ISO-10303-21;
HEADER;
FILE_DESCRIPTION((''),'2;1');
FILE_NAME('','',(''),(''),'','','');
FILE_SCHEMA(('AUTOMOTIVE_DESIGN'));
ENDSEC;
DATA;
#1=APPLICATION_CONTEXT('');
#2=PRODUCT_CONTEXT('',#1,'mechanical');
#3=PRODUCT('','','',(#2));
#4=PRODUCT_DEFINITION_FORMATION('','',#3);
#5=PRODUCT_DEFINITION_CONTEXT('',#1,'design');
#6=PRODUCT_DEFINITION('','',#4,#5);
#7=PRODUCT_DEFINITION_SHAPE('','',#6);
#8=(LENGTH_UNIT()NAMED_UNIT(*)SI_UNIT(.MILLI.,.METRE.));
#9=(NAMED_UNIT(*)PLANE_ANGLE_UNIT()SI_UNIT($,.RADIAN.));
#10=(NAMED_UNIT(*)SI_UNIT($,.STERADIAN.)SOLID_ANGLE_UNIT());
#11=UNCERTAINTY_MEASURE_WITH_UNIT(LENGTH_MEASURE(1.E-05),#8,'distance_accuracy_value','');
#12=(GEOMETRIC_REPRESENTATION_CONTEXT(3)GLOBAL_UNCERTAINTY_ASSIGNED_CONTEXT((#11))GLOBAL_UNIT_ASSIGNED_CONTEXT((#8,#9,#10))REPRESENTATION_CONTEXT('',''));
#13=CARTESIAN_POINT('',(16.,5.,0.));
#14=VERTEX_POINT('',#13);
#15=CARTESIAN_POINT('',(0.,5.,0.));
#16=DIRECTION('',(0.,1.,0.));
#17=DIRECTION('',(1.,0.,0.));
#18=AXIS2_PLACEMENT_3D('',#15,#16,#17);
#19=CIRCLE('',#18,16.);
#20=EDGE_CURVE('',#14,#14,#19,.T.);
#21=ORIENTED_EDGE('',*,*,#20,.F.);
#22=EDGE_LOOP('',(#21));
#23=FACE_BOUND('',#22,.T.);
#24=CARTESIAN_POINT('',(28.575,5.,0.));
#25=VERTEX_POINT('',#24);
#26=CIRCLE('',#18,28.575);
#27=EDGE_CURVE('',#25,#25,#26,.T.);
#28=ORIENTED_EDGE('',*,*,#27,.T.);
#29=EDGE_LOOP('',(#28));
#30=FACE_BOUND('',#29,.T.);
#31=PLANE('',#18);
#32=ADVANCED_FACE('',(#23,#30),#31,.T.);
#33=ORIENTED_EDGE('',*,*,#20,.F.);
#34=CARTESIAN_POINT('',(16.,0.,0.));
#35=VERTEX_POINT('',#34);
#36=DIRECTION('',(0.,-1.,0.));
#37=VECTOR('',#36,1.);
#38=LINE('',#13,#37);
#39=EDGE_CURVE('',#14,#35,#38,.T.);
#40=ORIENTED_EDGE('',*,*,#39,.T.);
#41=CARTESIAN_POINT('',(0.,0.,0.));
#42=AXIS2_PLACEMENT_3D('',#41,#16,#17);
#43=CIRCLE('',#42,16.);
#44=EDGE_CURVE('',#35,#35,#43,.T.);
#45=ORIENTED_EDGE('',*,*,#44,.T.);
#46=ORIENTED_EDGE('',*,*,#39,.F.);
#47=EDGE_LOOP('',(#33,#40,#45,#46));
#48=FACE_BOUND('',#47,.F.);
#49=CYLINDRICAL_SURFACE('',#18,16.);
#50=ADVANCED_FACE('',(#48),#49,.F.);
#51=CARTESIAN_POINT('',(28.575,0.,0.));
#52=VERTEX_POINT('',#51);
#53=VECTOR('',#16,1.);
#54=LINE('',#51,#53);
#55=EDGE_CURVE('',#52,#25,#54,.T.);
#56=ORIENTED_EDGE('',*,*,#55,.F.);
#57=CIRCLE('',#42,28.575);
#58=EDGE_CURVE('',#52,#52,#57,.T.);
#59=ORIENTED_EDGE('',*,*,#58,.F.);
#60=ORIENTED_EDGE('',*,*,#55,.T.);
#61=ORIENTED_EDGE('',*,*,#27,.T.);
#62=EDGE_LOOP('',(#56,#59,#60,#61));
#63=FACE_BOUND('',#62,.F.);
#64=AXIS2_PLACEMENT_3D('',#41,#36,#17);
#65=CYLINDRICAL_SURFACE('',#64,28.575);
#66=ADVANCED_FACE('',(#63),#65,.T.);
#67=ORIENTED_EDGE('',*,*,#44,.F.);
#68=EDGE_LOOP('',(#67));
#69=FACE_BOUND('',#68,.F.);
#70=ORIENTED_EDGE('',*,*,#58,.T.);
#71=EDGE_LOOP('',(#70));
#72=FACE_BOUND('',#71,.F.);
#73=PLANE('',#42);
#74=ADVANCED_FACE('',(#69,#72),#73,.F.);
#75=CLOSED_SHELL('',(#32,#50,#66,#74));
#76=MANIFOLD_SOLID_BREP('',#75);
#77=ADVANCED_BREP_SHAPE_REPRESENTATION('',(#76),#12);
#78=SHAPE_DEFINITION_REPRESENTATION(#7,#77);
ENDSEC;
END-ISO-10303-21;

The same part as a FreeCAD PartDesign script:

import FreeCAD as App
import Part
import Sketcher

V = App.Vector
Q = App.Units.Quantity

doc = App.newDocument("Part")
body = doc.addObject("PartDesign::Body", "Body")

sketch1 = body.newObject("Sketcher::SketchObject", "Sketch")
sketch1.AttachmentSupport = (doc.getObject("XZ_Plane"), [""])
sketch1.MapMode = "FlatFace"
sketch1.addGeometry(Part.Circle(V(0, 0, 0), V(0, 0, 1), 29), False)
sketch1.addConstraint(Sketcher.Constraint("Coincident", 0, 3, -1, 1))
sketch1.addConstraint(Sketcher.Constraint("Diameter", 0, Q("57.15 mm")))
pad1 = body.newObject("PartDesign::Pad", "Pad")
pad1.Profile = sketch1
pad1.Length = 5
pad1.Reversed = True

sketch2 = body.newObject("Sketcher::SketchObject", "Sketch001")
sketch2.AttachmentSupport = (doc.getObject("XZ_Plane"), [""])
sketch2.MapMode = "FlatFace"
sketch2.AttachmentOffset = App.Placement(V(0, 0, -5), App.Rotation())
sketch2.addGeometry(Part.Circle(V(0, 0, 0), V(0, 0, 1), 16), False)
sketch2.addConstraint(Sketcher.Constraint("Coincident", 0, 3, -1, 1))
sketch2.addConstraint(Sketcher.Constraint("Diameter", 0, Q("32 mm")))
pocket1 = body.newObject("PartDesign::Pocket", "Pocket")
pocket1.Profile = sketch2
pocket1.Length = 5
pocket1.Reversed = True

doc.recompute()
